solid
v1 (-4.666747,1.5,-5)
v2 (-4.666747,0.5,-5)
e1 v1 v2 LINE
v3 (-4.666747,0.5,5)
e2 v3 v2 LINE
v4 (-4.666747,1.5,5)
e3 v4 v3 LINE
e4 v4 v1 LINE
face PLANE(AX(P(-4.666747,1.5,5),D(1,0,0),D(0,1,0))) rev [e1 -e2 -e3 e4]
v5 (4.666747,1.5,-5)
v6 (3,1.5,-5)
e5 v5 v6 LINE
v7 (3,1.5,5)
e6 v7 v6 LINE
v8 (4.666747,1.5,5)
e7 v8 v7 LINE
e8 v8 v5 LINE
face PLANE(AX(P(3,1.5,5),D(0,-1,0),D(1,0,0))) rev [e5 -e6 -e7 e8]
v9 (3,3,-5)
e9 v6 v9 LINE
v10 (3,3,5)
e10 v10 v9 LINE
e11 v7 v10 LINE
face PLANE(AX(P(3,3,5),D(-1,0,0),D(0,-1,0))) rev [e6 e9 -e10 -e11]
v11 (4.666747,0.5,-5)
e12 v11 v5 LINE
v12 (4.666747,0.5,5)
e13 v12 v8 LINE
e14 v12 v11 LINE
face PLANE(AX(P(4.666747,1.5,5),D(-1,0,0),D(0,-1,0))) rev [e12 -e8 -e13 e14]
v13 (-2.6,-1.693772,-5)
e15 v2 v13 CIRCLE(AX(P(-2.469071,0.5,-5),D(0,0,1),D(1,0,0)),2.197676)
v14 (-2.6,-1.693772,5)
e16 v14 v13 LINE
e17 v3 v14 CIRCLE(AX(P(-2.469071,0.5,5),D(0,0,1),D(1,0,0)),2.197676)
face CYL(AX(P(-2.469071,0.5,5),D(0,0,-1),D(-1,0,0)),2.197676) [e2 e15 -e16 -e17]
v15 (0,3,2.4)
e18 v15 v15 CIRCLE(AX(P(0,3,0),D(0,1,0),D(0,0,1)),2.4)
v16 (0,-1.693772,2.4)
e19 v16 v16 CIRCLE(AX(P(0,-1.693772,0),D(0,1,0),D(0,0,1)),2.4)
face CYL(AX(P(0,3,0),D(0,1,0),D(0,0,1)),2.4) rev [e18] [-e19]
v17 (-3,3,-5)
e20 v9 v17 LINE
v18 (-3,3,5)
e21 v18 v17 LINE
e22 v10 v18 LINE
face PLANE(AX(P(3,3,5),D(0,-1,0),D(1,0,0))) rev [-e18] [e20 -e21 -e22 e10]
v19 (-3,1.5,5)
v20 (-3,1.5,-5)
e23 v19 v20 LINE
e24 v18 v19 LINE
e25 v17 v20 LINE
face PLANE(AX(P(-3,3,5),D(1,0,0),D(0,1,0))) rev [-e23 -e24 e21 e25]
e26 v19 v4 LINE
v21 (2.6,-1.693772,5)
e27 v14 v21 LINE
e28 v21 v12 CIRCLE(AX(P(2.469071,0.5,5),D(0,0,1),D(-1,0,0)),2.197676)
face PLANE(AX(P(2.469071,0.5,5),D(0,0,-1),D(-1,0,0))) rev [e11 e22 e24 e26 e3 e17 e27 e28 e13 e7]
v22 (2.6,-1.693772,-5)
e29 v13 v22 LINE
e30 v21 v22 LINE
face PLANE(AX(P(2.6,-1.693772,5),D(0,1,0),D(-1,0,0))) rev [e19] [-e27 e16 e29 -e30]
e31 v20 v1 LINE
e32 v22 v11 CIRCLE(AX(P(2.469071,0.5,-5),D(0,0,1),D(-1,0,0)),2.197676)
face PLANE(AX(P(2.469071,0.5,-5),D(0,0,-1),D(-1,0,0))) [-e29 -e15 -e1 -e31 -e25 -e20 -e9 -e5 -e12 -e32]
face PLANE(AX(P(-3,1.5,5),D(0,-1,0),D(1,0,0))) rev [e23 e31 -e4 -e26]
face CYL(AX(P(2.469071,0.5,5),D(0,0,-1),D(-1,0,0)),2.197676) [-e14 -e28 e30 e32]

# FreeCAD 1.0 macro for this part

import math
import FreeCAD as App
import Part
import Sketcher
from FreeCAD import Vector
Q = App.Units.Quantity

doc = App.newDocument("Part")
body = doc.addObject("PartDesign::Body", "Body")

# Sketch on XY plane
sketch1 = body.newObject("Sketcher::SketchObject", "Sketch")
sketch1.AttachmentSupport = (doc.getObject("XY_Plane"), [""])
sketch1.MapMode = "FlatFace"
sketch1.addGeometry([
    Part.LineSegment(Vector(3, 3, 0), Vector(-3, 3, 0)),  # 0
    Part.LineSegment(Vector(-3, 3, 0), Vector(-3, 1.5, 0)),  # 1
    Part.LineSegment(Vector(-3, 1.5, 0), Vector(-4.666747, 1.5, 0)),  # 2
    Part.LineSegment(Vector(-4.666747, 1.5, 0), Vector(-4.666747, 0.5, 0)),  # 3
    Part.ArcOfCircle(Part.Circle(Vector(-2.469071, 0.5, 0), Vector(0, 0, 1), 2.197676), math.radians(-180), math.radians(-93.41549)),  # 4
    Part.LineSegment(Vector(-2.6, -1.693772, 0), Vector(2.6, -1.693772, 0)),  # 5
    Part.ArcOfCircle(Part.Circle(Vector(2.469071, 0.5, 0), Vector(0, 0, 1), 2.197676), math.radians(-86.58451), math.radians(0)),  # 6
    Part.LineSegment(Vector(4.666747, 0.5, 0), Vector(4.666747, 1.5, 0)),  # 7
    Part.LineSegment(Vector(4.666747, 1.5, 0), Vector(3, 1.5, 0)),  # 8
    Part.LineSegment(Vector(3, 1.5, 0), Vector(3, 3, 0)),  # 9
], False)
sketch1.addConstraint([
    Sketcher.Constraint("Coincident", 0, 2, 1, 1),
    Sketcher.Constraint("Coincident", 1, 2, 2, 1),
    Sketcher.Constraint("Coincident", 2, 2, 3, 1),
    Sketcher.Constraint("Tangent", 3, 2, 4, 1),
    Sketcher.Constraint("Coincident", 4, 2, 5, 1),
    Sketcher.Constraint("Coincident", 5, 2, 6, 1),
    Sketcher.Constraint("Tangent", 6, 2, 7, 1),
    Sketcher.Constraint("Coincident", 7, 2, 8, 1),
    Sketcher.Constraint("Coincident", 8, 2, 9, 1),
    Sketcher.Constraint("Coincident", 9, 2, 0, 1),
    Sketcher.Constraint("Horizontal", 0),
    Sketcher.Constraint("Vertical", 1),
    Sketcher.Constraint("Horizontal", 2),
    Sketcher.Constraint("Vertical", 3),
    Sketcher.Constraint("Horizontal", 5),
    Sketcher.Constraint("Vertical", 7),
    Sketcher.Constraint("Horizontal", 8),
    Sketcher.Constraint("Vertical", 9),
    Sketcher.Constraint("Equal", 4, 6),
    Sketcher.Constraint("Symmetric", 4, 3, 6, 3, -2),
    Sketcher.Constraint("Symmetric", 1, 2, 8, 2, -2),
    Sketcher.Constraint("DistanceX", 0, 2, 0, 1, Q("6 mm")),
    Sketcher.Constraint("DistanceY", 3, 2, 3, 1, Q("1 mm")),
    Sketcher.Constraint("DistanceX", 5, 1, 5, 2, Q("5.2 mm")),
    Sketcher.Constraint("DistanceY", 1, 2, 1, 1, Q("1.5 mm")),
    Sketcher.Constraint("DistanceY", -1, 1, 0, 2, Q("3 mm")),
    Sketcher.Constraint("Radius", 4, Q("2.197676 mm")),
    Sketcher.Constraint("DistanceX", 2, 2, 2, 1, Q("1.666747 mm")),
])
pad1 = body.newObject("PartDesign::Pad", "Pad")
pad1.Profile = sketch1
pad1.Length = 10

# Sketch on XZ plane
sketch2 = body.newObject("Sketcher::SketchObject", "Sketch001")
sketch2.AttachmentSupport = (doc.getObject("XZ_Plane"), [""])
sketch2.MapMode = "FlatFace"
sketch2.AttachmentOffset = App.Placement(Vector(0, 0, -3), App.Rotation())
sketch2.addGeometry(Part.Circle(Vector(0, 5, 0), Vector(0, 0, 1), 2.4), False)
sketch2.addConstraint([
    Sketcher.Constraint("PointOnObject", 0, 3, -2),
    Sketcher.Constraint("Diameter", 0, Q("4.8 mm")),
    Sketcher.Constraint("DistanceY", -1, 1, 0, 3, Q("5 mm")),
])
doc.recompute()
hole = body.newObject("PartDesign::Hole", "Hole")
hole.Profile = sketch2
hole.ThreadType = "None"
hole.Diameter = 4.8
hole.DepthType = "ThroughAll"
hole.Reversed = True
body2 = doc.addObject("PartDesign::Body", "Body001")
doc.recompute()

body.Placement = App.Placement(Vector(0, 0, -5), App.Rotation(Vector(0, 0, 1), 0))
boolean = body2.newObject("PartDesign::Boolean", "Boolean")
boolean.Type = "Fuse"
boolean.addObjects([body])

doc.recompute()
